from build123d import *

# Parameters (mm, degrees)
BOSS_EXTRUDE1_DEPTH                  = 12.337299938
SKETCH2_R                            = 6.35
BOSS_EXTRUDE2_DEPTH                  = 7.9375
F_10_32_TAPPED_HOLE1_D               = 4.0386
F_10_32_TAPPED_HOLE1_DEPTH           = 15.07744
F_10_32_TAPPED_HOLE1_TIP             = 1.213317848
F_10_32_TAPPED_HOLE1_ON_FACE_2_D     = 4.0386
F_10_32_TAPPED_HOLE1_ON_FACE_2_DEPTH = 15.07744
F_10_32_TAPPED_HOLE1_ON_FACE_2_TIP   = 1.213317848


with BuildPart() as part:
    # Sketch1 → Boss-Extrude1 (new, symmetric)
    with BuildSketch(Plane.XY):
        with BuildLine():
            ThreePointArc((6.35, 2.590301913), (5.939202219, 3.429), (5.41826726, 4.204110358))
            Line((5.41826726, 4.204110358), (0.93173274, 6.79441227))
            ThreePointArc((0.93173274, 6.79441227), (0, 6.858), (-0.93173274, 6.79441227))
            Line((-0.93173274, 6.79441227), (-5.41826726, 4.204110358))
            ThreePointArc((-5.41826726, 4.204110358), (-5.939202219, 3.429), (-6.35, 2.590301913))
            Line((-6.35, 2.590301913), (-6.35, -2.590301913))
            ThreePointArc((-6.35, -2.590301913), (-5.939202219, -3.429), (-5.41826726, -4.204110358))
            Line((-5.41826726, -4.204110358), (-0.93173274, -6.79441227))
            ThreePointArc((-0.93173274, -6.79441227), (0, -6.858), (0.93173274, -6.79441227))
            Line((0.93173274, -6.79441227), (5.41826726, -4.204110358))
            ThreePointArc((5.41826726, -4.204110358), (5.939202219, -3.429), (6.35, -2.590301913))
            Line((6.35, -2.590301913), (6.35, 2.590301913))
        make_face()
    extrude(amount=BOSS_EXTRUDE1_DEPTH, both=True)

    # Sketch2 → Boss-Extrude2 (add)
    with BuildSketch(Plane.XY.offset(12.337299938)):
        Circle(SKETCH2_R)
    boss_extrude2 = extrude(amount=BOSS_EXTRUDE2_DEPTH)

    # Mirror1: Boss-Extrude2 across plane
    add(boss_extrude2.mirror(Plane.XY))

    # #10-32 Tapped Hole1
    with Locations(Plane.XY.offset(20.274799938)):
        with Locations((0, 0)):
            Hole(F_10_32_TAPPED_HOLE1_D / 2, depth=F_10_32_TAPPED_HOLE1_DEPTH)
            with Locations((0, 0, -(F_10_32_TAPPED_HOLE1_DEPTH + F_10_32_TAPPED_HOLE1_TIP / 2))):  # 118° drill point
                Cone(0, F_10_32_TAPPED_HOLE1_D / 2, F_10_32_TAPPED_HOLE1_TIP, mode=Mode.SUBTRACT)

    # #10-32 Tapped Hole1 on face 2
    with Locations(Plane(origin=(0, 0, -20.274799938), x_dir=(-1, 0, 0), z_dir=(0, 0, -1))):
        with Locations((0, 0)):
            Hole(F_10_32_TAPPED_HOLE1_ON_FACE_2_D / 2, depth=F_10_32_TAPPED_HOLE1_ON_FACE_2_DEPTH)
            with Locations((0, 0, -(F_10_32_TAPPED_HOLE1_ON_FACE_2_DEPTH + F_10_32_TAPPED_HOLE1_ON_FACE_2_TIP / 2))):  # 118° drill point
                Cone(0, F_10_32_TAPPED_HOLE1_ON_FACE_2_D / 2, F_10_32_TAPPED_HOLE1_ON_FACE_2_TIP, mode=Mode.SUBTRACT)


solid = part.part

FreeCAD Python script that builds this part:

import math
import FreeCAD as App
import Part
import Sketcher

V = App.Vector
Q = App.Units.Quantity

doc = App.newDocument("Part")
body = doc.addObject("PartDesign::Body", "Body")

sketch1 = doc.addObject("Sketcher::SketchObject", "Sketch")
body.addObject(sketch1)
sketch1.AttachmentSupport = (doc.XY_Plane, [""])
sketch1.MapMode = "FlatFace"
sketch1.addGeometry(Part.ArcOfCircle(Part.Circle(V(0, 0, 0), V(0, 0, 1), 6.9), math.radians(22.19), math.radians(37.81)), False)
sketch1.addGeometry(Part.LineSegment(V(5.4, 4.2, 0), V(0.9, 6.8, 0)), False)
sketch1.addGeometry(Part.ArcOfCircle(Part.Circle(V(0, 0, 0), V(0, 0, 1), 6.9), math.radians(82.19), math.radians(97.81)), False)
sketch1.addGeometry(Part.LineSegment(V(-0.9, 6.8, 0), V(-5.4, 4.2, 0)), False)
sketch1.addGeometry(Part.ArcOfCircle(Part.Circle(V(0, 0, 0), V(0, 0, 1), 6.9), math.radians(142.19), math.radians(157.81)), False)
sketch1.addGeometry(Part.LineSegment(V(-6.3, 2.6, 0), V(-6.3, -2.6, 0)), False)
sketch1.addGeometry(Part.ArcOfCircle(Part.Circle(V(0, 0, 0), V(0, 0, 1), 6.9), math.radians(-157.81), math.radians(-142.19)), False)
sketch1.addGeometry(Part.LineSegment(V(-5.4, -4.2, 0), V(-0.9, -6.8, 0)), False)
sketch1.addGeometry(Part.ArcOfCircle(Part.Circle(V(0, 0, 0), V(0, 0, 1), 6.9), math.radians(-97.81), math.radians(-82.19)), False)
sketch1.addGeometry(Part.LineSegment(V(0.9, -6.8, 0), V(5.4, -4.2, 0)), False)
sketch1.addGeometry(Part.ArcOfCircle(Part.Circle(V(0, 0, 0), V(0, 0, 1), 6.9), math.radians(-37.81), math.radians(-22.19)), False)
sketch1.addGeometry(Part.LineSegment(V(6.3, -2.6, 0), V(6.3, 2.6, 0)), False)
sketch1.addConstraint(Sketcher.Constraint("Coincident", 0, 2, 1, 1))
sketch1.addConstraint(Sketcher.Constraint("Coincident", 1, 2, 2, 1))
sketch1.addConstraint(Sketcher.Constraint("Coincident", 2, 2, 3, 1))
sketch1.addConstraint(Sketcher.Constraint("Coincident", 3, 2, 4, 1))
sketch1.addConstraint(Sketcher.Constraint("Coincident", 4, 2, 5, 1))
sketch1.addConstraint(Sketcher.Constraint("Coincident", 5, 2, 6, 1))
sketch1.addConstraint(Sketcher.Constraint("Coincident", 6, 2, 7, 1))
sketch1.addConstraint(Sketcher.Constraint("Coincident", 7, 2, 8, 1))
sketch1.addConstraint(Sketcher.Constraint("Coincident", 8, 2, 9, 1))
sketch1.addConstraint(Sketcher.Constraint("Coincident", 9, 2, 10, 1))
sketch1.addConstraint(Sketcher.Constraint("Coincident", 10, 2, 11, 1))
sketch1.addConstraint(Sketcher.Constraint("Coincident", 11, 2, 0, 1))
sketch1.addConstraint(Sketcher.Constraint("Vertical", 5))
sketch1.addConstraint(Sketcher.Constraint("Vertical", 11))
sketch1.addConstraint(Sketcher.Constraint("Coincident", 0, 3, -1, 1))
sketch1.addConstraint(Sketcher.Constraint("Coincident", 2, 3, -1, 1))
sketch1.addConstraint(Sketcher.Constraint("Coincident", 4, 3, -1, 1))
sketch1.addConstraint(Sketcher.Constraint("Coincident", 6, 3, -1, 1))
sketch1.addConstraint(Sketcher.Constraint("Coincident", 8, 3, -1, 1))
sketch1.addConstraint(Sketcher.Constraint("Coincident", 10, 3, -1, 1))
sketch1.addConstraint(Sketcher.Constraint("Equal", 0, 2))
sketch1.addConstraint(Sketcher.Constraint("Equal", 2, 4))
sketch1.addConstraint(Sketcher.Constraint("Equal", 4, 6))
sketch1.addConstraint(Sketcher.Constraint("Equal", 6, 8))
sketch1.addConstraint(Sketcher.Constraint("Equal", 8, 10))
sketch1.addConstraint(Sketcher.Constraint("Parallel", 1, 7))
sketch1.addConstraint(Sketcher.Constraint("Parallel", 3, 9))
sketch1.addConstraint(Sketcher.Constraint("Horizontal", 1, 2, 2, 2))
sketch1.addConstraint(Sketcher.Constraint("Horizontal", 0, 2, 3, 2))
sketch1.addConstraint(Sketcher.Constraint("Horizontal", 7, 2, 8, 2))
sketch1.addConstraint(Sketcher.Constraint("Horizontal", 5, 2, 10, 2))
sketch1.addConstraint(Sketcher.Constraint("Vertical", 3, 2, 6, 2))
sketch1.addConstraint(Sketcher.Constraint("Radius", 0, Q("0.27 in")))
sketch1.addConstraint(Sketcher.Constraint("Angle", 1, Q("150 deg")))
sketch1.addConstraint(Sketcher.Constraint("DistanceX", 4, 2, -1, 1, Q("0.25 in")))
sketch1.addConstraint(Sketcher.Constraint("DistanceX", 2, 2, 0, 2, Q("0.25 in")))
pad1 = doc.addObject("PartDesign::Pad", "Pad")
body.addObject(pad1)
pad1.Profile = sketch1
pad1.Length = 24.6746
pad1.Midplane = True

sketch2 = doc.addObject("Sketcher::SketchObject", "Sketch001")
body.addObject(sketch2)
sketch2.AttachmentSupport = (doc.XY_Plane, [""])
sketch2.MapMode = "FlatFace"
sketch2.AttachmentOffset = App.Placement(V(0, 0, 12.3373), App.Rotation())
sketch2.addGeometry(Part.Circle(V(0, 0, 0), V(0, 0, 1), 6), False)
sketch2.addConstraint(Sketcher.Constraint("Coincident", 0, 3, -1, 1))
sketch2.addConstraint(Sketcher.Constraint("Diameter", 0, Q("0.5 in")))
pad2 = doc.addObject("PartDesign::Pad", "Pad001")
body.addObject(pad2)
pad2.Profile = sketch2
pad2.Length = Q("0.3125 in")
doc.recompute()

mirrored = doc.addObject("PartDesign::Mirrored", "Mirrored")
body.addObject(mirrored)
mirrored.Originals = [pad2]
mirrored.MirrorPlane = (doc.XY_Plane, [""])
body.Tip = mirrored

sketch3 = doc.addObject("Sketcher::SketchObject", "Sketch002")
body.addObject(sketch3)
sketch3.AttachmentSupport = (doc.XY_Plane, [""])
sketch3.MapMode = "FlatFace"
sketch3.AttachmentOffset = App.Placement(V(0, 0, 20.2748), App.Rotation())
sketch3.addGeometry(Part.Circle(V(0, 0, 0), V(0, 0, 1), 2), False)
sketch3.addConstraint(Sketcher.Constraint("Coincident", 0, 3, -1, 1))
sketch3.addConstraint(Sketcher.Constraint("Diameter", 0, Q("0.159 in")))
doc.recompute()
hole = doc.addObject("PartDesign::Hole", "Hole")
body.addObject(hole)
hole.Profile = sketch3
hole.ThreadType = "None"
hole.Diameter = Q("0.159 in")
hole.DepthType = "Dimension"
hole.Depth = Q("0.5936 in")
hole.DrillPoint = "Angled"
hole.DrillPointAngle = 118

sketch4 = doc.addObject("Sketcher::SketchObject", "Sketch003")
body.addObject(sketch4)
sketch4.AttachmentSupport = (doc.XY_Plane, [""])
sketch4.MapMode = "FlatFace"
sketch4.AttachmentOffset = App.Placement(V(0, 0, -20.2748), App.Rotation())
sketch4.addGeometry(Part.Circle(V(0, 0, 0), V(0, 0, 1), 2), False)
sketch4.addConstraint(Sketcher.Constraint("Coincident", 0, 3, -1, 1))
sketch4.addConstraint(Sketcher.Constraint("Diameter", 0, Q("0.159 in")))
doc.recompute()
hole2 = doc.addObject("PartDesign::Hole", "Hole001")
body.addObject(hole2)
hole2.Profile = sketch4
hole2.ThreadType = "None"
hole2.Diameter = Q("0.159 in")
hole2.DepthType = "Dimension"
hole2.Depth = Q("0.5936 in")
hole2.DrillPoint = "Angled"
hole2.DrillPointAngle = 118
hole2.Reversed = True

doc.recompute()
